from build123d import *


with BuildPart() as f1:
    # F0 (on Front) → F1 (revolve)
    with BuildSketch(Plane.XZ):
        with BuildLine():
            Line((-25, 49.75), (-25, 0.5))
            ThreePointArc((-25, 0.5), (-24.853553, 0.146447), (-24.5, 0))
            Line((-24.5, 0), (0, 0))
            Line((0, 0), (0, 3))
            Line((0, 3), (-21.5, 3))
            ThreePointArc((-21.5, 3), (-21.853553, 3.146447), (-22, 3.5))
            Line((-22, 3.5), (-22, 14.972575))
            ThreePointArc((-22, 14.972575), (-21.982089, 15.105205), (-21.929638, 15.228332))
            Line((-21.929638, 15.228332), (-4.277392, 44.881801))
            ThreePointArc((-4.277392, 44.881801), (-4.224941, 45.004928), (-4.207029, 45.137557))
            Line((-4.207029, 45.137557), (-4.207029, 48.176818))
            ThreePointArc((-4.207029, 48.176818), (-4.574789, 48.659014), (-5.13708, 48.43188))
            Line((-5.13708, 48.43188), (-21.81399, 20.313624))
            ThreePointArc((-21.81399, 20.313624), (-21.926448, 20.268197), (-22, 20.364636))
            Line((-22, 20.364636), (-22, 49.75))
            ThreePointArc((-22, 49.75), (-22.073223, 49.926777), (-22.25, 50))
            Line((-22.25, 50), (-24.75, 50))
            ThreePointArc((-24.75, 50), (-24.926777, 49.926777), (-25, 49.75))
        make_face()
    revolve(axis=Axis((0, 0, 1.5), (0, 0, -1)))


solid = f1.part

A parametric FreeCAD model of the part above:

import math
import FreeCAD as App
import Part
import Sketcher

V = App.Vector

doc = App.newDocument("Part")
body = doc.addObject("PartDesign::Body", "Body")

# Sketch on XZ plane
sketch1 = body.newObject("Sketcher::SketchObject", "Sketch")
sketch1.AttachmentSupport = (doc.getObject("XZ_Plane"), [""])
sketch1.MapMode = "FlatFace"
sketch1.addGeometry([
    Part.LineSegment(V(-25, 49.75, 0), V(-25, 0.5, 0)),  # 0
    Part.ArcOfCircle(Part.Circle(V(-24.499999, 0.500001, 0), V(0, 0, 1), 0.500001), math.radians(-179.999847), math.radians(-90.000153)),  # 1
    Part.LineSegment(V(-24.5, 0, 0), V(0, 0, 0)),  # 2
    Part.LineSegment(V(0, 0, 0), V(0, 3, 0)),  # 3
    Part.LineSegment(V(0, 3, 0), V(-21.5, 3, 0)),  # 4
    Part.ArcOfCircle(Part.Circle(V(-21.499999, 3.500001, 0), V(0, 0, 1), 0.500001), math.radians(-179.999847), math.radians(-90.000153)),  # 5
    Part.LineSegment(V(-22, 3.5, 0), V(-22, 14.972575, 0)),  # 6
    Part.ArcOfCircle(Part.Circle(V(-21.500008, 14.972578, 0), V(0, 0, 1), 0.499992), math.radians(149.235147), math.radians(180.000344)),  # 7
    Part.LineSegment(V(-21.929638, 15.228332, 0), V(-4.277392, 44.881801, 0)),  # 8
    Part.ArcOfCircle(Part.Circle(V(-4.707035, 45.137561, 0), V(0, 0, 1), 0.500006), math.radians(-30.764637), math.radians(-0.000403)),  # 9
    Part.LineSegment(V(-4.207029, 45.137557, 0), V(-4.207029, 48.176818, 0)),  # 10
    Part.ArcOfCircle(Part.Circle(V(-4.707029, 48.176818, 0), V(0, 0, 1), 0.5), math.radians(-0.000031), math.radians(149.327959)),  # 11
    Part.LineSegment(V(-5.13708, 48.43188, 0), V(-21.81399, 20.313624, 0)),  # 12
    Part.ArcOfCircle(Part.Circle(V(-21.9, 20.364636, 0), V(0, 0, 1), 0.1), math.radians(-179.999998), math.radians(-30.671876)),  # 13
    Part.LineSegment(V(-22, 20.364636, 0), V(-22, 49.75, 0)),  # 14
    Part.ArcOfCircle(Part.Circle(V(-22.249999, 49.750001, 0), V(0, 0, 1), 0.249999), math.radians(-0.000238), math.radians(90.000238)),  # 15
    Part.LineSegment(V(-22.25, 50, 0), V(-24.75, 50, 0)),  # 16
    Part.ArcOfCircle(Part.Circle(V(-24.750001, 49.750001, 0), V(0, 0, 1), 0.249999), math.radians(89.999762), math.radians(180.000238)),  # 17
], False)
sketch1.addConstraint([
    Sketcher.Constraint("Coincident", 0, 2, 1, 1),
    Sketcher.Constraint("Coincident", 1, 2, 2, 1),
    Sketcher.Constraint("Coincident", 2, 2, 3, 1),
    Sketcher.Constraint("Coincident", 3, 2, 4, 1),
    Sketcher.Constraint("Coincident", 4, 2, 5, 2),
    Sketcher.Constraint("Coincident", 5, 1, 6, 1),
    Sketcher.Constraint("Coincident", 6, 2, 7, 2),
    Sketcher.Constraint("Coincident", 7, 1, 8, 1),
    Sketcher.Constraint("Coincident", 8, 2, 9, 1),
    Sketcher.Constraint("Coincident", 9, 2, 10, 1),
    Sketcher.Constraint("Coincident", 10, 2, 11, 1),
    Sketcher.Constraint("Coincident", 11, 2, 12, 1),
    Sketcher.Constraint("Coincident", 12, 2, 13, 2),
    Sketcher.Constraint("Coincident", 13, 1, 14, 1),
    Sketcher.Constraint("Coincident", 14, 2, 15, 1),
    Sketcher.Constraint("Coincident", 15, 2, 16, 1),
    Sketcher.Constraint("Coincident", 16, 2, 17, 1),
    Sketcher.Constraint("Coincident", 17, 2, 0, 1),
    Sketcher.Constraint("Vertical", 0),
    Sketcher.Constraint("Horizontal", 2),
    Sketcher.Constraint("Vertical", 3),
    Sketcher.Constraint("Horizontal", 4),
    Sketcher.Constraint("Vertical", 6),
    Sketcher.Constraint("Vertical", 10),
    Sketcher.Constraint("Vertical", 14),
    Sketcher.Constraint("Horizontal", 16),
    Sketcher.Constraint("Coincident", 2, 2, -1, 1),
    Sketcher.Constraint("Radius", 1, 0.500001),
    Sketcher.Constraint("Radius", 5, 0.500001),
    Sketcher.Constraint("Radius", 11, 0.5),
    Sketcher.Constraint("Radius", 13, 0.1),
    Sketcher.Constraint("DistanceY", 3, 1, 3, 2, 3.0),
    Sketcher.Constraint("Radius", 15, 0.249999),
    Sketcher.Constraint("Radius", 17, 0.249999),
    Sketcher.Constraint("DistanceX", 2, 1, 2, 2, 24.5),
    Sketcher.Constraint("DistanceX", 4, 2, 4, 1, 21.5),
    Sketcher.Constraint("DistanceX", 16, 2, 16, 1, 2.5),
    Sketcher.Constraint("DistanceX", 0, 2, -1, 1, 25.0),
    Sketcher.Constraint("DistanceX", 5, 1, -1, 1, 22.0),
    Sketcher.Constraint("DistanceX", 13, 1, -1, 1, 22.0),
    Sketcher.Constraint("DistanceY", -1, 1, 15, 2, 50.0),
    Sketcher.Constraint("DistanceY", 0, 2, 5, 3, 3.000001),
    Sketcher.Constraint("DistanceY", 1, 3, 5, 1, 2.999999),
    Sketcher.Constraint("DistanceY", 0, 2, 0, 1, 49.25),
    Sketcher.Constraint("DistanceX", 17, 3, 15, 2, 2.500001),
    Sketcher.Constraint("DistanceY", -1, 1, 14, 2, 49.75),
    Sketcher.Constraint("Radius", 7, 0.499992),
    Sketcher.Constraint("Radius", 9, 0.500006),
    Sketcher.Constraint("DistanceY", 10, 1, 10, 2, 3.039261),
    Sketcher.Constraint("DistanceY", -1, 1, 8, 2, 44.881801),
    Sketcher.Constraint("Distance", 12, 32.691828),
    Sketcher.Constraint("DistanceY", 6, 1, 6, 2, 11.472575),
    Sketcher.Constraint("DistanceY", 14, 1, 14, 2, 29.385364),
    Sketcher.Constraint("DistanceY", -1, 1, 7, 3, 14.972578),
    Sketcher.Constraint("DistanceY", -1, 1, 9, 3, 45.137561),
    Sketcher.Constraint("DistanceX", 11, 3, -1, 1, 4.707029),
    Sketcher.Constraint("DistanceY", -1, 1, 11, 3, 48.176818),
    Sketcher.Constraint("DistanceX", 7, 1, -1, 1, 21.929638),
    Sketcher.Constraint("DistanceX", 11, 2, -1, 1, 5.13708),
    Sketcher.Constraint("DistanceX", 12, 2, -1, 1, 21.81399),
    Sketcher.Constraint("DistanceY", 9, 2, 11, 3, 3.039261),
])
revolution = body.newObject("PartDesign::Revolution", "Revolution")
revolution.Profile = sketch1
revolution.ReferenceAxis = (sketch1, ["V_Axis"])
revolution.Angle = 360

doc.recompute()
